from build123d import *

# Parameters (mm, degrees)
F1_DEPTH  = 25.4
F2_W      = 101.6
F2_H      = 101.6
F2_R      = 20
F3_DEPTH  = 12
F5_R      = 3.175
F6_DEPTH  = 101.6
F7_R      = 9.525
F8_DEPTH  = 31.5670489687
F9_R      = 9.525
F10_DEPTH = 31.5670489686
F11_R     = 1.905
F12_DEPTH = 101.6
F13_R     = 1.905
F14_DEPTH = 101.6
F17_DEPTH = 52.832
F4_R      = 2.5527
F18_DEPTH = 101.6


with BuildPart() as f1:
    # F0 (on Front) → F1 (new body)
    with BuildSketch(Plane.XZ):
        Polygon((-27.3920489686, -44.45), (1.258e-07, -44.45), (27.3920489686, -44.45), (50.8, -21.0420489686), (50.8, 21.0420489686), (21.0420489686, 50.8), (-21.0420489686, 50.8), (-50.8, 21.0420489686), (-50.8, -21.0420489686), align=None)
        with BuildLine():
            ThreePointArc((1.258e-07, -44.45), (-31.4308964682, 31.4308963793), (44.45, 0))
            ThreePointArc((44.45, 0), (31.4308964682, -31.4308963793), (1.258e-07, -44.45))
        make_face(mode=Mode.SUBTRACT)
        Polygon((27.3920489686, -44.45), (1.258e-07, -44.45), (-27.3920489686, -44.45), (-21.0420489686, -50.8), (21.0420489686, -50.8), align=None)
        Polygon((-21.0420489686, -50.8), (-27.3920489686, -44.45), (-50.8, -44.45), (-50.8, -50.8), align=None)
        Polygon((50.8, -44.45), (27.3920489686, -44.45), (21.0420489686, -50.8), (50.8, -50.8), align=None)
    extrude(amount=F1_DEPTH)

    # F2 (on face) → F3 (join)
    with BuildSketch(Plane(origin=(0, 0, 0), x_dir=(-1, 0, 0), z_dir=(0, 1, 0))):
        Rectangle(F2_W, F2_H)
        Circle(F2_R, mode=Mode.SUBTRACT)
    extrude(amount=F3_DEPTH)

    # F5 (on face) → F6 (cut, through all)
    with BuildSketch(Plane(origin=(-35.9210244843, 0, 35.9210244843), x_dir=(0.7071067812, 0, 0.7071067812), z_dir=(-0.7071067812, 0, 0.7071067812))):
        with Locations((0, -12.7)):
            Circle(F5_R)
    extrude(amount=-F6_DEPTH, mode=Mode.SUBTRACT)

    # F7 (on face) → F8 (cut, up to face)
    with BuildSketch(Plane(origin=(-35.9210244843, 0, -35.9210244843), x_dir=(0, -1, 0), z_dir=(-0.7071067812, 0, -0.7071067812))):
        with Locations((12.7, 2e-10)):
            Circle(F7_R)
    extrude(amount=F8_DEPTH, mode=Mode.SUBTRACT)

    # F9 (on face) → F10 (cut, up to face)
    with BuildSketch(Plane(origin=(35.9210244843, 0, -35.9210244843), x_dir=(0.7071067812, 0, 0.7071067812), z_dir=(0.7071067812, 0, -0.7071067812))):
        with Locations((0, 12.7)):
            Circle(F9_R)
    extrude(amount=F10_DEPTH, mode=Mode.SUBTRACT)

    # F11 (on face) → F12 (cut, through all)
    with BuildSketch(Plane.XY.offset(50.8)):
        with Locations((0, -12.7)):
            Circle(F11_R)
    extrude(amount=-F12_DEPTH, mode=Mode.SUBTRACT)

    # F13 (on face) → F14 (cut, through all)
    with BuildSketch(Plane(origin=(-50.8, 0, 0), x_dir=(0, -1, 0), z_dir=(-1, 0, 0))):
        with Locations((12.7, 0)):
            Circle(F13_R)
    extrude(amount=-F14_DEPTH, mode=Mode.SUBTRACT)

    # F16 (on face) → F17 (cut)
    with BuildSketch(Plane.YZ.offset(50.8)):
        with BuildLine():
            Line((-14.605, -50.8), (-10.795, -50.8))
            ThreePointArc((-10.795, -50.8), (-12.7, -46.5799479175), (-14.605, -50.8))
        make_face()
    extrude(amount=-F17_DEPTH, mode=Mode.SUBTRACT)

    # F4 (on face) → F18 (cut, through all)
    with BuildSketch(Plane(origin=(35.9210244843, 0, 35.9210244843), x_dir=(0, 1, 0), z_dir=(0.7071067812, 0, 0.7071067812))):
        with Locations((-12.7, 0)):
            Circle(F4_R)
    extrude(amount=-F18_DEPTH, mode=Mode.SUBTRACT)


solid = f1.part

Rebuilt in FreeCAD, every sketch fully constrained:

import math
import FreeCAD as App
import Part
import Sketcher
Q = App.Units.Quantity


def add_polygon(sketch, points):
    """Adds a closed chain of lines whose ends are joined by coincident constraints."""
    first, n = sketch.GeometryCount, len(points)
    for a, b in zip(points, points[1:] + points[:1]):
        sketch.addGeometry(Part.LineSegment(App.Vector(*a, 0), App.Vector(*b, 0)), False)
    for i in range(n):
        sketch.addConstraint(Sketcher.Constraint("Coincident", first + i, 2, first + (i + 1) % n, 1))

doc = App.newDocument("Part")
body = doc.addObject("PartDesign::Body", "Body")

sketch1 = doc.addObject("Sketcher::SketchObject", "Sketch")
body.addObject(sketch1)
sketch1.AttachmentSupport = (doc.XZ_Plane, [""])
sketch1.MapMode = "FlatFace"
add_polygon(sketch1, [(-50.8, 21.042049), (-50.8, -21.042049), (-27.392049, -44.45), (-50.8, -44.45), (-50.8, -50.8), (50.8, -50.8), (50.8, -44.45), (27.392049, -44.45), (50.8, -21.042049), (50.8, 21.042049), (21.042049, 50.8), (-21.042049, 50.8)])
sketch1.addGeometry(Part.Circle(App.Vector(0, 0, 0), App.Vector(0, 0, 1), 44.45), False)
sketch1.addConstraint(Sketcher.Constraint("Vertical", 0))
sketch1.addConstraint(Sketcher.Constraint("Horizontal", 2))
sketch1.addConstraint(Sketcher.Constraint("Vertical", 3))
sketch1.addConstraint(Sketcher.Constraint("Horizontal", 4))
sketch1.addConstraint(Sketcher.Constraint("Vertical", 5))
sketch1.addConstraint(Sketcher.Constraint("Horizontal", 6))
sketch1.addConstraint(Sketcher.Constraint("Vertical", 8))
sketch1.addConstraint(Sketcher.Constraint("Horizontal", 10))
sketch1.addConstraint(Sketcher.Constraint("Coincident", 12, 3, -1, 1))
sketch1.addConstraint(Sketcher.Constraint("Symmetric", 0, 2, 8, 2, -1, 1))
sketch1.addConstraint(Sketcher.Constraint("Symmetric", 2, 2, 5, 2, -2))
sketch1.addConstraint(Sketcher.Constraint("Perpendicular", 1, 7))
sketch1.addConstraint(Sketcher.Constraint("Perpendicular", 7, 9))
sketch1.addConstraint(Sketcher.Constraint("Perpendicular", 9, 11))
sketch1.addConstraint(Sketcher.Constraint("Horizontal", 0, 2, 7, 2))
sketch1.addConstraint(Sketcher.Constraint("Horizontal", 8, 2, 11, 2))
sketch1.addConstraint(Sketcher.Constraint("Vertical", 0, 2, 2, 2))
sketch1.addConstraint(Sketcher.Constraint("Equal", 2, 6))
sketch1.addConstraint(Sketcher.Constraint("Equal", 10, 0))
sketch1.addConstraint(Sketcher.Constraint("Diameter", 12, Q("3.5 in")))
sketch1.addConstraint(Sketcher.Constraint("DistanceX", 4, 1, 4, 2, Q("4 in")))
sketch1.addConstraint(Sketcher.Constraint("DistanceY", 3, 2, -1, 1, Q("2 in")))
sketch1.addConstraint(Sketcher.Constraint("DistanceY", 3, 2, 3, 1, Q("0.25 in")))
sketch1.addConstraint(Sketcher.Constraint("DistanceX", 2, 2, 2, 1, Q("23.407951 mm")))
pad1 = doc.addObject("PartDesign::Pad", "Pad")
body.addObject(pad1)
pad1.Profile = sketch1
pad1.Length = Q("1 in")

sketch2 = doc.addObject("Sketcher::SketchObject", "Sketch001")
body.addObject(sketch2)
sketch2.AttachmentSupport = (doc.XZ_Plane, [""])
sketch2.MapMode = "FlatFace"
add_polygon(sketch2, [(50.8, 50.8), (50.8, -50.8), (-50.8, -50.8), (-50.8, 50.8)])
sketch2.addGeometry(Part.Circle(App.Vector(0, 0, 0), App.Vector(0, 0, 1), 20), False)
sketch2.addConstraint(Sketcher.Constraint("Vertical", 0))
sketch2.addConstraint(Sketcher.Constraint("Horizontal", 1))
sketch2.addConstraint(Sketcher.Constraint("Vertical", 2))
sketch2.addConstraint(Sketcher.Constraint("Horizontal", 3))
sketch2.addConstraint(Sketcher.Constraint("Coincident", 4, 3, -1, 1))
sketch2.addConstraint(Sketcher.Constraint("Symmetric", 0, 2, 2, 2, -1, 1))
sketch2.addConstraint(Sketcher.Constraint("Equal", 3, 0))
sketch2.addConstraint(Sketcher.Constraint("DistanceX", 1, 2, 1, 1, Q("4 in")))
sketch2.addConstraint(Sketcher.Constraint("Diameter", 4, Q("40 mm")))
pad2 = doc.addObject("PartDesign::Pad", "Pad001")
body.addObject(pad2)
pad2.Profile = sketch2
pad2.Length = 12
pad2.Reversed = True

sketch3 = doc.addObject("Sketcher::SketchObject", "Sketch002")
body.addObject(sketch3)
sketch3.Placement = App.Placement(App.Vector(-35.921024, 0, 35.921024), App.Rotation(App.Vector(0.707106781, 0, 0.707106781), App.Vector(0, 0.999999999, 0), App.Vector(-0.707106781, 0, 0.707106781), "ZXY"))
sketch3.addGeometry(Part.Circle(App.Vector(0, -12.7, 0), App.Vector(0, 0, 1), 3.175), False)
sketch3.addConstraint(Sketcher.Constraint("PointOnObject", 0, 3, -2))
sketch3.addConstraint(Sketcher.Constraint("Diameter", 0, Q("0.25 in")))
sketch3.addConstraint(Sketcher.Constraint("DistanceY", 0, 3, -1, 1, Q("0.5 in")))
pocket1 = doc.addObject("PartDesign::Pocket", "Pocket")
body.addObject(pocket1)
pocket1.Profile = sketch3
pocket1.Length = Q("4 in")

sketch4 = doc.addObject("Sketcher::SketchObject", "Sketch003")
body.addObject(sketch4)
sketch4.Placement = App.Placement(App.Vector(-35.921024, 0, -35.921024), App.Rotation(App.Vector(0, -1, 0), App.Vector(-0.707106781, 0, 0.707106781), App.Vector(-0.707106781, 0, -0.707106781), "ZXY"))
sketch4.addGeometry(Part.Circle(App.Vector(12.7, 0, 0), App.Vector(0, 0, 1), 9.525), False)
sketch4.addConstraint(Sketcher.Constraint("PointOnObject", 0, 3, -1))
sketch4.addConstraint(Sketcher.Constraint("Diameter", 0, Q("0.75 in")))
sketch4.addConstraint(Sketcher.Constraint("DistanceX", -1, 1, 0, 3, Q("0.5 in")))
pocket2 = doc.addObject("PartDesign::Pocket", "Pocket001")
body.addObject(pocket2)
pocket2.Profile = sketch4
pocket2.Length = 31.567049
pocket2.Reversed = True

sketch5 = doc.addObject("Sketcher::SketchObject", "Sketch004")
body.addObject(sketch5)
sketch5.Placement = App.Placement(App.Vector(35.921024, 0, -35.921024), App.Rotation(App.Vector(0.707106781, 0, 0.707106781), App.Vector(0, -0.999999999, 0), App.Vector(0.707106781, 0, -0.707106781), "ZXY"))
sketch5.addGeometry(Part.Circle(App.Vector(0, 12.7, 0), App.Vector(0, 0, 1), 9.525), False)
sketch5.addConstraint(Sketcher.Constraint("PointOnObject", 0, 3, -2))
sketch5.addConstraint(Sketcher.Constraint("Diameter", 0, Q("0.75 in")))
sketch5.addConstraint(Sketcher.Constraint("DistanceY", -1, 1, 0, 3, Q("0.5 in")))
pocket3 = doc.addObject("PartDesign::Pocket", "Pocket002")
body.addObject(pocket3)
pocket3.Profile = sketch5
pocket3.Length = 31.567049
pocket3.Reversed = True

sketch6 = doc.addObject("Sketcher::SketchObject", "Sketch005")
body.addObject(sketch6)
sketch6.AttachmentSupport = (doc.XY_Plane, [""])
sketch6.MapMode = "FlatFace"
sketch6.AttachmentOffset = App.Placement(App.Vector(0, 0, 2 * 25.4), App.Rotation())
sketch6.addGeometry(Part.Circle(App.Vector(0, -12.7, 0), App.Vector(0, 0, 1), 1.905), False)
sketch6.addConstraint(Sketcher.Constraint("PointOnObject", 0, 3, -2))
sketch6.addConstraint(Sketcher.Constraint("Diameter", 0, Q("0.15 in")))
sketch6.addConstraint(Sketcher.Constraint("DistanceY", 0, 3, -1, 1, Q("0.5 in")))
pocket4 = doc.addObject("PartDesign::Pocket", "Pocket003")
body.addObject(pocket4)
pocket4.Profile = sketch6
pocket4.Type = "ThroughAll"

sketch7 = doc.addObject("Sketcher::SketchObject", "Sketch006")
body.addObject(sketch7)
sketch7.AttachmentSupport = (doc.YZ_Plane, [""])
sketch7.MapMode = "FlatFace"
sketch7.AttachmentOffset = App.Placement(App.Vector(0, 0, -2 * 25.4), App.Rotation())
sketch7.addGeometry(Part.Circle(App.Vector(-12.7, 0, 0), App.Vector(0, 0, 1), 1.905), False)
sketch7.addConstraint(Sketcher.Constraint("PointOnObject", 0, 3, -1))
sketch7.addConstraint(Sketcher.Constraint("Diameter", 0, Q("0.15 in")))
sketch7.addConstraint(Sketcher.Constraint("DistanceX", 0, 3, -1, 1, Q("0.5 in")))
pocket5 = doc.addObject("PartDesign::Pocket", "Pocket004")
body.addObject(pocket5)
pocket5.Profile = sketch7
pocket5.Type = "ThroughAll"
pocket5.Reversed = True

sketch8 = doc.addObject("Sketcher::SketchObject", "Sketch007")
body.addObject(sketch8)
sketch8.AttachmentSupport = (doc.YZ_Plane, [""])
sketch8.MapMode = "FlatFace"
sketch8.AttachmentOffset = App.Placement(App.Vector(0, 0, 2 * 25.4), App.Rotation())
sketch8.addGeometry(Part.LineSegment(App.Vector(-14.605, -50.8, 0), App.Vector(-10.795, -50.8, 0)), False)
sketch8.addGeometry(Part.ArcOfCircle(Part.Circle(App.Vector(-12.7, -49.119948, 0), App.Vector(0, 0, 1), 2.54), math.radians(-41.409622), math.radians(221.409622)), False)
sketch8.addConstraint(Sketcher.Constraint("Coincident", 0, 1, 1, 2))
sketch8.addConstraint(Sketcher.Constraint("Coincident", 1, 1, 0, 2))
sketch8.addConstraint(Sketcher.Constraint("Horizontal", 0))
sketch8.addConstraint(Sketcher.Constraint("Radius", 1, Q("0.1 in")))
sketch8.addConstraint(Sketcher.Constraint("DistanceY", 0, 1, -1, 1, Q("2 in")))
sketch8.addConstraint(Sketcher.Constraint("DistanceX", 0, 1, 0, 2, Q("0.15 in")))
sketch8.addConstraint(Sketcher.Constraint("DistanceX", 1, 3, -1, 1, Q("0.5 in")))
pocket6 = doc.addObject("PartDesign::Pocket", "Pocket005")
body.addObject(pocket6)
pocket6.Profile = sketch8
pocket6.Length = Q("2.08 in")

sketch9 = doc.addObject("Sketcher::SketchObject", "Sketch008")
body.addObject(sketch9)
sketch9.Placement = App.Placement(App.Vector(35.921024, 0, 35.921024), App.Rotation(App.Vector(0, 1, 0), App.Vector(-0.707106781, 0, 0.707106781), App.Vector(0.707106781, 0, 0.707106781), "ZXY"))
sketch9.addGeometry(Part.Circle(App.Vector(-12.7, 0, 0), App.Vector(0, 0, 1), 2.5527), False)
sketch9.addConstraint(Sketcher.Constraint("PointOnObject", 0, 3, -1))
sketch9.addConstraint(Sketcher.Constraint("Diameter", 0, Q("0.201 in")))
sketch9.addConstraint(Sketcher.Constraint("DistanceX", 0, 3, -1, 1, Q("0.5 in")))
pocket7 = doc.addObject("PartDesign::Pocket", "Pocket006")
body.addObject(pocket7)
pocket7.Profile = sketch9
pocket7.Type = "ThroughAll"

doc.recompute()
